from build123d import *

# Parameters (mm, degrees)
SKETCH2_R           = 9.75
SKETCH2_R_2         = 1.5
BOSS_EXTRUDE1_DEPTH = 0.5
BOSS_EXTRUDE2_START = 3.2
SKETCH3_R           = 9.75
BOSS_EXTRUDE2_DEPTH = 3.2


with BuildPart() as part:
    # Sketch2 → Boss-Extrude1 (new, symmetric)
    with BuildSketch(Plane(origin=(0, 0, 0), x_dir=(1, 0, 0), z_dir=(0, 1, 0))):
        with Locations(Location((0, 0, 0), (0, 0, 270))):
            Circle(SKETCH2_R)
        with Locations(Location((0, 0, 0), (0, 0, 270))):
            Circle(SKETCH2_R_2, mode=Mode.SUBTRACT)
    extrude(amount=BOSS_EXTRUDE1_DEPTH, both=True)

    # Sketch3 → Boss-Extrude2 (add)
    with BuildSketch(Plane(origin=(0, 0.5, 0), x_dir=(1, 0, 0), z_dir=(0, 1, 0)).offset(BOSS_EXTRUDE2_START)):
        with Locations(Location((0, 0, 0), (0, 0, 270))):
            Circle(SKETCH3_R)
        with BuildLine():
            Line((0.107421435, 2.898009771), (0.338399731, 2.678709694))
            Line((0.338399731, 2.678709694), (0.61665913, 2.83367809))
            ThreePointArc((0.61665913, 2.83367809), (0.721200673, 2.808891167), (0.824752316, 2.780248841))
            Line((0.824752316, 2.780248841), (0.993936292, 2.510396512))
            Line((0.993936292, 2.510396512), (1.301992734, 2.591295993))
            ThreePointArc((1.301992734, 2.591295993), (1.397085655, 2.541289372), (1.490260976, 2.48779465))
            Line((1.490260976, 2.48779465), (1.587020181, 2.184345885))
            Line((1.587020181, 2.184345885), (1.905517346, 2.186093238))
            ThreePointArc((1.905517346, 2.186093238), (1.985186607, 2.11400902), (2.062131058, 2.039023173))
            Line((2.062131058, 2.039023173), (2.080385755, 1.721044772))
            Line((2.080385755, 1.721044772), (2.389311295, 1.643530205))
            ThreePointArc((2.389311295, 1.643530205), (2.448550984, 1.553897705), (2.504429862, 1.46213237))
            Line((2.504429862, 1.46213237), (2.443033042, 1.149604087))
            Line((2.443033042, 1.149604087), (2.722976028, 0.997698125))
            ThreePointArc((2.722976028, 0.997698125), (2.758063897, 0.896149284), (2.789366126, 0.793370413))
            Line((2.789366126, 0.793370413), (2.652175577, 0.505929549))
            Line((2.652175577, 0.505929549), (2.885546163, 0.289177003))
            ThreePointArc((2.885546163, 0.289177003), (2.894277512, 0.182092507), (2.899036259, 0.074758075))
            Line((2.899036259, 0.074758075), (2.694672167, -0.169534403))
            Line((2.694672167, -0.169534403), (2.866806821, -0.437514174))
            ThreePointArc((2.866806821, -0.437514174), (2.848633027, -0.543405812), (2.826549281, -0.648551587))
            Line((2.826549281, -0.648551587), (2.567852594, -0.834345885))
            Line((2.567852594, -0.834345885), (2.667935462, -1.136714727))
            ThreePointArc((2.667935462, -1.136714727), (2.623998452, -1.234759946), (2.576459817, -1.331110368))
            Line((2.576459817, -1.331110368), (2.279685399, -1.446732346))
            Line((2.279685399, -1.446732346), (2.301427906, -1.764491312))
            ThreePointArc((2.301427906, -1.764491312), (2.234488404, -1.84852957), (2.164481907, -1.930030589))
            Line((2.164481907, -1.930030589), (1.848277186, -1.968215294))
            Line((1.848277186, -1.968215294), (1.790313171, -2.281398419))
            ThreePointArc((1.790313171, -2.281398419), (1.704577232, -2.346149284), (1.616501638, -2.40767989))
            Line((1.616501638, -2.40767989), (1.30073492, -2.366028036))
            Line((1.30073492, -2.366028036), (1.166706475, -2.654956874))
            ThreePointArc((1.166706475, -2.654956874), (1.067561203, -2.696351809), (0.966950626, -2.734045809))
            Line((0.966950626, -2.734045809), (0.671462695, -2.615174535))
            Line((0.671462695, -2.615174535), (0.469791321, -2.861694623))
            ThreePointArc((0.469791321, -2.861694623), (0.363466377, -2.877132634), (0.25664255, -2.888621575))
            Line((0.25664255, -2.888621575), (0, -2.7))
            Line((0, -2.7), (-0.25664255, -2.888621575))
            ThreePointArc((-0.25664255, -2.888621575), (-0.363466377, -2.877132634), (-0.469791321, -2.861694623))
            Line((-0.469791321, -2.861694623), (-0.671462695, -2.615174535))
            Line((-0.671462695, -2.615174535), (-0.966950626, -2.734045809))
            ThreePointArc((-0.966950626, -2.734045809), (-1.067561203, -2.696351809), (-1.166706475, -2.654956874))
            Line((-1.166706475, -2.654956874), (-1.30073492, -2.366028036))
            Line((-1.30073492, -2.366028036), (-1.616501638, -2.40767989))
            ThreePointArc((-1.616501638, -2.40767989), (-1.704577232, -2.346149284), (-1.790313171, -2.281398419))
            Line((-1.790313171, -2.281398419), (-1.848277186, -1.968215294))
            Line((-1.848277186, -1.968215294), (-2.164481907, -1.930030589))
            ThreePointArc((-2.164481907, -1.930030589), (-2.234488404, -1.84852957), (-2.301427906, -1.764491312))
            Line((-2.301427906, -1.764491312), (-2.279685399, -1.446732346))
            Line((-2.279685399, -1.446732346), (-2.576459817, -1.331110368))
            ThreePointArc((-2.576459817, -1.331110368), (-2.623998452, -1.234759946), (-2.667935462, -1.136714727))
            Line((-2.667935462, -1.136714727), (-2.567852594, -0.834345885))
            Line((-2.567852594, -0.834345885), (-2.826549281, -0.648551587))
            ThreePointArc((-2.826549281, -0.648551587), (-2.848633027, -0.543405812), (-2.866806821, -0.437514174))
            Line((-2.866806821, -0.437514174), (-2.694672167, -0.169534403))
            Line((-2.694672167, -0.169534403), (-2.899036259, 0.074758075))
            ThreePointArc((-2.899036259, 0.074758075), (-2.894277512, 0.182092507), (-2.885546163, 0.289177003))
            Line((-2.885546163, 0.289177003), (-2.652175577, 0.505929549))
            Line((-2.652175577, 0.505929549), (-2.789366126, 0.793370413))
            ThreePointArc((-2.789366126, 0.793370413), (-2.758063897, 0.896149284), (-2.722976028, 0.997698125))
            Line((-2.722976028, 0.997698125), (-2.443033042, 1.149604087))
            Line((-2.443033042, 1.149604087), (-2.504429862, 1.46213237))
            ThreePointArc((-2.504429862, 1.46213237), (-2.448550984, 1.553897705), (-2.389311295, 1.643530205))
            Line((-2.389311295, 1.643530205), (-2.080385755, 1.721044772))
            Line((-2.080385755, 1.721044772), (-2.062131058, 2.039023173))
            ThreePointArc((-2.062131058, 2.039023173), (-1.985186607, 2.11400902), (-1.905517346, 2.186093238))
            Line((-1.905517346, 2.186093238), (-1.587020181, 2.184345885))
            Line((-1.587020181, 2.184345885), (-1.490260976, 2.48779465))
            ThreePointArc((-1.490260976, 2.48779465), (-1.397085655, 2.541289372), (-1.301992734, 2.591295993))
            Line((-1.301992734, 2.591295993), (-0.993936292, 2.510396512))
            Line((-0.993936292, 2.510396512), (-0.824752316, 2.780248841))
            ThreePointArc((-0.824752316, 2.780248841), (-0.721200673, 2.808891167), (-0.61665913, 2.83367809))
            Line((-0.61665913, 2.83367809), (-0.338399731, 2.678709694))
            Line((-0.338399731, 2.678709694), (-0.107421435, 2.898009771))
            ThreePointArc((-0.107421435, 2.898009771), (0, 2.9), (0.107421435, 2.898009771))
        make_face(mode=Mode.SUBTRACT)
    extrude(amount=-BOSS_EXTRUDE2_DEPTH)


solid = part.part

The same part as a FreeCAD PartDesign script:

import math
import FreeCAD as App
import Part
import Sketcher

V = App.Vector

doc = App.newDocument("Part")
body = doc.addObject("PartDesign::Body", "Body")

# Sketch on XZ plane
sketch1 = doc.addObject("Sketcher::SketchObject", "Sketch")
body.addObject(sketch1)
sketch1.AttachmentSupport = (doc.XZ_Plane, [""])
sketch1.MapMode = "FlatFace"
sketch1.addGeometry([
    Part.Circle(V(0, 0, 0), V(0, 0, 1), 9.8),
    Part.Circle(V(0, 0, 0), V(0, 0, 1), 1.5),
], False)
sketch1.addConstraint([
    Sketcher.Constraint("Coincident", 0, 3, -1, 1),
    Sketcher.Constraint("Coincident", 1, 3, -1, 1),
    Sketcher.Constraint("Diameter", 1, 3.0),
    Sketcher.Constraint("Diameter", 0, 19.5),
])
pad1 = doc.addObject("PartDesign::Pad", "Pad")
body.addObject(pad1)
pad1.Profile = sketch1
pad1.Length = 1
pad1.Midplane = True

# Sketch on XZ plane
sketch2 = doc.addObject("Sketcher::SketchObject", "Sketch001")
body.addObject(sketch2)
sketch2.AttachmentSupport = (doc.XZ_Plane, [""])
sketch2.MapMode = "FlatFace"
sketch2.AttachmentOffset = App.Placement(V(0, 0, -3.7), App.Rotation())
sketch2.addGeometry([
    Part.Circle(V(0, 0, 0), V(0, 0, 1), 9.75),  # 0
    Part.ArcOfCircle(Part.Circle(V(0, 0, 0), V(0, 0, 1), 2.9), math.radians(-92.12), math.radians(-87.88)),  # 1
    Part.LineSegment(V(0.11, -2.9, 0), V(0.34, -2.68, 0)),  # 2
    Part.LineSegment(V(0.34, -2.68, 0), V(0.62, -2.83, 0)),  # 3
    Part.ArcOfCircle(Part.Circle(V(0, 0, 0), V(0, 0, 1), 2.9), math.radians(-77.72), math.radians(-73.48)),  # 4
    Part.LineSegment(V(0.82, -2.78, 0), V(0.99, -2.51, 0)),  # 5
    Part.LineSegment(V(0.99, -2.51, 0), V(1.3, -2.59, 0)),  # 6
    Part.ArcOfCircle(Part.Circle(V(0, 0, 0), V(0, 0, 1), 2.9), math.radians(-63.32), math.radians(-59.08)),  # 7
    Part.LineSegment(V(1.49, -2.49, 0), V(1.59, -2.18, 0)),  # 8
    Part.LineSegment(V(1.59, -2.18, 0), V(1.91, -2.19, 0)),  # 9
    Part.ArcOfCircle(Part.Circle(V(0, 0, 0), V(0, 0, 1), 2.9), math.radians(-48.92), math.radians(-44.68)),  # 10
    Part.LineSegment(V(2.06, -2.04, 0), V(2.08, -1.72, 0)),  # 11
    Part.LineSegment(V(2.08, -1.72, 0), V(2.39, -1.64, 0)),  # 12
    Part.ArcOfCircle(Part.Circle(V(0, 0, 0), V(0, 0, 1), 2.9), math.radians(-34.52), math.radians(-30.28)),  # 13
    Part.LineSegment(V(2.5, -1.46, 0), V(2.44, -1.15, 0)),  # 14
    Part.LineSegment(V(2.44, -1.15, 0), V(2.72, -1, 0)),  # 15
    Part.ArcOfCircle(Part.Circle(V(0, 0, 0), V(0, 0, 1), 2.9), math.radians(-20.12), math.radians(-15.88)),  # 16
    Part.LineSegment(V(2.79, -0.79, 0), V(2.65, -0.51, 0)),  # 17
    Part.LineSegment(V(2.65, -0.51, 0), V(2.89, -0.29, 0)),  # 18
    Part.ArcOfCircle(Part.Circle(V(0, 0, 0), V(0, 0, 1), 2.9), math.radians(-5.72), math.radians(-1.48)),  # 19
    Part.LineSegment(V(2.9, -0.07, 0), V(2.69, 0.17, 0)),  # 20
    Part.LineSegment(V(2.69, 0.17, 0), V(2.87, 0.44, 0)),  # 21
    Part.ArcOfCircle(Part.Circle(V(0, 0, 0), V(0, 0, 1), 2.9), math.radians(8.68), math.radians(12.92)),  # 22
    Part.LineSegment(V(2.83, 0.65, 0), V(2.57, 0.83, 0)),  # 23
    Part.LineSegment(V(2.57, 0.83, 0), V(2.67, 1.14, 0)),  # 24
    Part.ArcOfCircle(Part.Circle(V(0, 0, 0), V(0, 0, 1), 2.9), math.radians(23.08), math.radians(27.32)),  # 25
    Part.LineSegment(V(2.58, 1.33, 0), V(2.28, 1.45, 0)),  # 26
    Part.LineSegment(V(2.28, 1.45, 0), V(2.3, 1.76, 0)),  # 27
    Part.ArcOfCircle(Part.Circle(V(0, 0, 0), V(0, 0, 1), 2.9), math.radians(37.48), math.radians(41.72)),  # 28
    Part.LineSegment(V(2.16, 1.93, 0), V(1.85, 1.97, 0)),  # 29
    Part.LineSegment(V(1.85, 1.97, 0), V(1.79, 2.28, 0)),  # 30
    Part.ArcOfCircle(Part.Circle(V(0, 0, 0), V(0, 0, 1), 2.9), math.radians(51.88), math.radians(56.12)),  # 31
    Part.LineSegment(V(1.62, 2.41, 0), V(1.3, 2.37, 0)),  # 32
    Part.LineSegment(V(1.3, 2.37, 0), V(1.17, 2.65, 0)),  # 33
    Part.ArcOfCircle(Part.Circle(V(0, 0, 0), V(0, 0, 1), 2.9), math.radians(66.28), math.radians(70.52)),  # 34
    Part.LineSegment(V(0.97, 2.73, 0), V(0.67, 2.62, 0)),  # 35
    Part.LineSegment(V(0.67, 2.62, 0), V(0.47, 2.86, 0)),  # 36
    Part.ArcOfCircle(Part.Circle(V(0, 0, 0), V(0, 0, 1), 2.9), math.radians(80.68), math.radians(84.92)),  # 37
    Part.LineSegment(V(0.26, 2.89, 0), V(0, 2.7, 0)),  # 38
    Part.LineSegment(V(0, 2.7, 0), V(-0.26, 2.89, 0)),  # 39
    Part.ArcOfCircle(Part.Circle(V(0, 0, 0), V(0, 0, 1), 2.9), math.radians(95.08), math.radians(99.32)),  # 40
    Part.LineSegment(V(-0.47, 2.86, 0), V(-0.67, 2.62, 0)),  # 41
    Part.LineSegment(V(-0.67, 2.62, 0), V(-0.97, 2.73, 0)),  # 42
    Part.ArcOfCircle(Part.Circle(V(0, 0, 0), V(0, 0, 1), 2.9), math.radians(109.48), math.radians(113.72)),  # 43
    Part.LineSegment(V(-1.17, 2.65, 0), V(-1.3, 2.37, 0)),  # 44
    Part.LineSegment(V(-1.3, 2.37, 0), V(-1.62, 2.41, 0)),  # 45
    Part.ArcOfCircle(Part.Circle(V(0, 0, 0), V(0, 0, 1), 2.9), math.radians(123.88), math.radians(128.12)),  # 46
    Part.LineSegment(V(-1.79, 2.28, 0), V(-1.85, 1.97, 0)),  # 47
    Part.LineSegment(V(-1.85, 1.97, 0), V(-2.16, 1.93, 0)),  # 48
    Part.ArcOfCircle(Part.Circle(V(0, 0, 0), V(0, 0, 1), 2.9), math.radians(138.28), math.radians(142.52)),  # 49
    Part.LineSegment(V(-2.3, 1.76, 0), V(-2.28, 1.45, 0)),  # 50
    Part.LineSegment(V(-2.28, 1.45, 0), V(-2.58, 1.33, 0)),  # 51
    Part.ArcOfCircle(Part.Circle(V(0, 0, 0), V(0, 0, 1), 2.9), math.radians(152.68), math.radians(156.92)),  # 52
    Part.LineSegment(V(-2.67, 1.14, 0), V(-2.57, 0.83, 0)),  # 53
    Part.LineSegment(V(-2.57, 0.83, 0), V(-2.83, 0.65, 0)),  # 54
    Part.ArcOfCircle(Part.Circle(V(0, 0, 0), V(0, 0, 1), 2.9), math.radians(167.08), math.radians(171.32)),  # 55
    Part.LineSegment(V(-2.87, 0.44, 0), V(-2.69, 0.17, 0)),  # 56
    Part.LineSegment(V(-2.69, 0.17, 0), V(-2.9, -0.07, 0)),  # 57
    Part.ArcOfCircle(Part.Circle(V(0, 0, 0), V(0, 0, 1), 2.9), math.radians(-178.52), math.radians(-174.28)),  # 58
    Part.LineSegment(V(-2.89, -0.29, 0), V(-2.65, -0.51, 0)),  # 59
    Part.LineSegment(V(-2.65, -0.51, 0), V(-2.79, -0.79, 0)),  # 60
    Part.ArcOfCircle(Part.Circle(V(0, 0, 0), V(0, 0, 1), 2.9), math.radians(-164.12), math.radians(-159.88)),  # 61
    Part.LineSegment(V(-2.72, -1, 0), V(-2.44, -1.15, 0)),  # 62
    Part.LineSegment(V(-2.44, -1.15, 0), V(-2.5, -1.46, 0)),  # 63
    Part.ArcOfCircle(Part.Circle(V(0, 0, 0), V(0, 0, 1), 2.9), math.radians(-149.72), math.radians(-145.48)),  # 64
    Part.LineSegment(V(-2.39, -1.64, 0), V(-2.08, -1.72, 0)),  # 65
    Part.LineSegment(V(-2.08, -1.72, 0), V(-2.06, -2.04, 0)),  # 66
    Part.ArcOfCircle(Part.Circle(V(0, 0, 0), V(0, 0, 1), 2.9), math.radians(-135.32), math.radians(-131.08)),  # 67
    Part.LineSegment(V(-1.91, -2.19, 0), V(-1.59, -2.18, 0)),  # 68
    Part.LineSegment(V(-1.59, -2.18, 0), V(-1.49, -2.49, 0)),  # 69
    Part.ArcOfCircle(Part.Circle(V(0, 0, 0), V(0, 0, 1), 2.9), math.radians(-120.92), math.radians(-116.68)),  # 70
    Part.LineSegment(V(-1.3, -2.59, 0), V(-0.99, -2.51, 0)),  # 71
    Part.LineSegment(V(-0.99, -2.51, 0), V(-0.82, -2.78, 0)),  # 72
    Part.ArcOfCircle(Part.Circle(V(0, 0, 0), V(0, 0, 1), 2.9), math.radians(-106.52), math.radians(-102.28)),  # 73
    Part.LineSegment(V(-0.62, -2.83, 0), V(-0.34, -2.68, 0)),  # 74
    Part.LineSegment(V(-0.34, -2.68, 0), V(-0.11, -2.9, 0)),  # 75
], False)
sketch2.addConstraint([
    Sketcher.Constraint("Coincident", 1, 2, 2, 1),
    Sketcher.Constraint("Coincident", 2, 2, 3, 1),
    Sketcher.Constraint("Coincident", 3, 2, 4, 1),
    Sketcher.Constraint("Coincident", 4, 2, 5, 1),
    Sketcher.Constraint("Coincident", 5, 2, 6, 1),
    Sketcher.Constraint("Coincident", 6, 2, 7, 1),
    Sketcher.Constraint("Coincident", 7, 2, 8, 1),
    Sketcher.Constraint("Coincident", 8, 2, 9, 1),
    Sketcher.Constraint("Coincident", 9, 2, 10, 1),
    Sketcher.Constraint("Coincident", 10, 2, 11, 1),
    Sketcher.Constraint("Coincident", 11, 2, 12, 1),
    Sketcher.Constraint("Coincident", 12, 2, 13, 1),
    Sketcher.Constraint("Coincident", 13, 2, 14, 1),
    Sketcher.Constraint("Coincident", 14, 2, 15, 1),
    Sketcher.Constraint("Coincident", 15, 2, 16, 1),
    Sketcher.Constraint("Coincident", 16, 2, 17, 1),
    Sketcher.Constraint("Coincident", 17, 2, 18, 1),
    Sketcher.Constraint("Coincident", 18, 2, 19, 1),
    Sketcher.Constraint("Coincident", 19, 2, 20, 1),
    Sketcher.Constraint("Coincident", 20, 2, 21, 1),
    Sketcher.Constraint("Coincident", 21, 2, 22, 1),
    Sketcher.Constraint("Coincident", 22, 2, 23, 1),
    Sketcher.Constraint("Coincident", 23, 2, 24, 1),
    Sketcher.Constraint("Coincident", 24, 2, 25, 1),
    Sketcher.Constraint("Coincident", 25, 2, 26, 1),
    Sketcher.Constraint("Coincident", 26, 2, 27, 1),
    Sketcher.Constraint("Coincident", 27, 2, 28, 1),
    Sketcher.Constraint("Coincident", 28, 2, 29, 1),
    Sketcher.Constraint("Coincident", 29, 2, 30, 1),
    Sketcher.Constraint("Coincident", 30, 2, 31, 1),
    Sketcher.Constraint("Coincident", 31, 2, 32, 1),
    Sketcher.Constraint("Coincident", 32, 2, 33, 1),
    Sketcher.Constraint("Coincident", 33, 2, 34, 1),
    Sketcher.Constraint("Coincident", 34, 2, 35, 1),
    Sketcher.Constraint("Coincident", 35, 2, 36, 1),
    Sketcher.Constraint("Coincident", 36, 2, 37, 1),
    Sketcher.Constraint("Coincident", 37, 2, 38, 1),
    Sketcher.Constraint("Coincident", 38, 2, 39, 1),
    Sketcher.Constraint("Coincident", 39, 2, 40, 1),
    Sketcher.Constraint("Coincident", 40, 2, 41, 1),
    Sketcher.Constraint("Coincident", 41, 2, 42, 1),
    Sketcher.Constraint("Coincident", 42, 2, 43, 1),
    Sketcher.Constraint("Coincident", 43, 2, 44, 1),
    Sketcher.Constraint("Coincident", 44, 2, 45, 1),
    Sketcher.Constraint("Coincident", 45, 2, 46, 1),
    Sketcher.Constraint("Coincident", 46, 2, 47, 1),
    Sketcher.Constraint("Coincident", 47, 2, 48, 1),
    Sketcher.Constraint("Coincident", 48, 2, 49, 1),
    Sketcher.Constraint("Coincident", 49, 2, 50, 1),
    Sketcher.Constraint("Coincident", 50, 2, 51, 1),
    Sketcher.Constraint("Coincident", 51, 2, 52, 1),
    Sketcher.Constraint("Coincident", 52, 2, 53, 1),
    Sketcher.Constraint("Coincident", 53, 2, 54, 1),
    Sketcher.Constraint("Coincident", 54, 2, 55, 1),
    Sketcher.Constraint("Coincident", 55, 2, 56, 1),
    Sketcher.Constraint("Coincident", 56, 2, 57, 1),
    Sketcher.Constraint("Coincident", 57, 2, 58, 1),
    Sketcher.Constraint("Coincident", 58, 2, 59, 1),
    Sketcher.Constraint("Coincident", 59, 2, 60, 1),
    Sketcher.Constraint("Coincident", 60, 2, 61, 1),
    Sketcher.Constraint("Coincident", 61, 2, 62, 1),
    Sketcher.Constraint("Coincident", 62, 2, 63, 1),
    Sketcher.Constraint("Coincident", 63, 2, 64, 1),
    Sketcher.Constraint("Coincident", 64, 2, 65, 1),
    Sketcher.Constraint("Coincident", 65, 2, 66, 1),
    Sketcher.Constraint("Coincident", 66, 2, 67, 1),
    Sketcher.Constraint("Coincident", 67, 2, 68, 1),
    Sketcher.Constraint("Coincident", 68, 2, 69, 1),
    Sketcher.Constraint("Coincident", 69, 2, 70, 1),
    Sketcher.Constraint("Coincident", 70, 2, 71, 1),
    Sketcher.Constraint("Coincident", 71, 2, 72, 1),
    Sketcher.Constraint("Coincident", 72, 2, 73, 1),
    Sketcher.Constraint("Coincident", 73, 2, 74, 1),
    Sketcher.Constraint("Coincident", 74, 2, 75, 1),
    Sketcher.Constraint("Coincident", 75, 2, 1, 1),
    Sketcher.Constraint("Coincident", 0, 3, -1, 1),
    Sketcher.Constraint("Coincident", 1, 3, -1, 1),
    Sketcher.Constraint("Coincident", 4, 3, -1, 1),
    Sketcher.Constraint("Coincident", 7, 3, -1, 1),
    Sketcher.Constraint("Coincident", 10, 3, -1, 1),
    Sketcher.Constraint("Coincident", 13, 3, -1, 1),
    Sketcher.Constraint("Coincident", 16, 3, -1, 1),
    Sketcher.Constraint("Coincident", 19, 3, -1, 1),
    Sketcher.Constraint("Coincident", 22, 3, -1, 1),
    Sketcher.Constraint("Coincident", 25, 3, -1, 1),
    Sketcher.Constraint("Coincident", 28, 3, -1, 1),
    Sketcher.Constraint("Coincident", 31, 3, -1, 1),
    Sketcher.Constraint("Coincident", 34, 3, -1, 1),
    Sketcher.Constraint("Coincident", 37, 3, -1, 1),
    Sketcher.Constraint("Coincident", 40, 3, -1, 1),
    Sketcher.Constraint("Coincident", 43, 3, -1, 1),
    Sketcher.Constraint("Coincident", 46, 3, -1, 1),
    Sketcher.Constraint("Coincident", 49, 3, -1, 1),
    Sketcher.Constraint("Coincident", 52, 3, -1, 1),
    Sketcher.Constraint("Coincident", 55, 3, -1, 1),
    Sketcher.Constraint("Coincident", 58, 3, -1, 1),
    Sketcher.Constraint("Coincident", 61, 3, -1, 1),
    Sketcher.Constraint("Coincident", 64, 3, -1, 1),
    Sketcher.Constraint("Coincident", 67, 3, -1, 1),
    Sketcher.Constraint("Coincident", 70, 3, -1, 1),
    Sketcher.Constraint("Coincident", 73, 3, -1, 1),
    Sketcher.Constraint("Equal", 1, 4),
    Sketcher.Constraint("Equal", 4, 7),
    Sketcher.Constraint("Equal", 7, 10),
    Sketcher.Constraint("Equal", 10, 13),
    Sketcher.Constraint("Equal", 13, 16),
    Sketcher.Constraint("Equal", 16, 19),
    Sketcher.Constraint("Equal", 19, 22),
    Sketcher.Constraint("Equal", 22, 25),
    Sketcher.Constraint("Equal", 25, 28),
    Sketcher.Constraint("Equal", 28, 31),
    Sketcher.Constraint("Equal", 31, 34),
    Sketcher.Constraint("Equal", 34, 37),
    Sketcher.Constraint("Equal", 37, 40),
    Sketcher.Constraint("Equal", 40, 43),
    Sketcher.Constraint("Equal", 43, 46),
    Sketcher.Constraint("Equal", 46, 49),
    Sketcher.Constraint("Equal", 49, 52),
    Sketcher.Constraint("Equal", 52, 55),
    Sketcher.Constraint("Equal", 55, 58),
    Sketcher.Constraint("Equal", 58, 61),
    Sketcher.Constraint("Equal", 61, 64),
    Sketcher.Constraint("Equal", 64, 67),
    Sketcher.Constraint("Equal", 67, 70),
    Sketcher.Constraint("Equal", 70, 73),
    Sketcher.Constraint("Symmetric", 35, 2, 41, 2, -2),
    Sketcher.Constraint("Symmetric", 32, 2, 44, 2, -2),
    Sketcher.Constraint("Symmetric", 29, 2, 47, 2, -2),
    Sketcher.Constraint("Symmetric", 26, 2, 50, 2, -2),
    Sketcher.Constraint("Symmetric", 23, 2, 53, 2, -2),
    Sketcher.Constraint("Symmetric", 20, 2, 56, 2, -2),
    Sketcher.Constraint("Symmetric", 17, 2, 59, 2, -2),
    Sketcher.Constraint("Symmetric", 14, 2, 62, 2, -2),
    Sketcher.Constraint("Symmetric", 11, 2, 65, 2, -2),
    Sketcher.Constraint("Symmetric", 8, 2, 68, 2, -2),
    Sketcher.Constraint("Symmetric", 5, 2, 71, 2, -2),
    Sketcher.Constraint("Symmetric", 2, 2, 74, 2, -2),
    Sketcher.Constraint("PointOnObject", 38, 2, -2),
    Sketcher.Constraint("Horizontal", 37, 2, 39, 2),
    Sketcher.Constraint("Horizontal", 36, 2, 40, 2),
    Sketcher.Constraint("Horizontal", 34, 2, 42, 2),
    Sketcher.Constraint("Horizontal", 33, 2, 43, 2),
    Sketcher.Constraint("Horizontal", 31, 2, 45, 2),
    Sketcher.Constraint("Horizontal", 30, 2, 46, 2),
    Sketcher.Constraint("Horizontal", 28, 2, 48, 2),
    Sketcher.Constraint("Horizontal", 27, 2, 49, 2),
    Sketcher.Constraint("Horizontal", 25, 2, 51, 2),
    Sketcher.Constraint("Horizontal", 24, 2, 52, 2),
    Sketcher.Constraint("Horizontal", 22, 2, 54, 2),
    Sketcher.Constraint("Horizontal", 21, 2, 55, 2),
    Sketcher.Constraint("Horizontal", 19, 2, 57, 2),
    Sketcher.Constraint("Horizontal", 18, 2, 58, 2),
    Sketcher.Constraint("Horizontal", 16, 2, 60, 2),
    Sketcher.Constraint("Horizontal", 15, 2, 61, 2),
    Sketcher.Constraint("Horizontal", 13, 2, 63, 2),
    Sketcher.Constraint("Horizontal", 12, 2, 64, 2),
    Sketcher.Constraint("Horizontal", 10, 2, 66, 2),
    Sketcher.Constraint("Horizontal", 9, 2, 67, 2),
    Sketcher.Constraint("Horizontal", 7, 2, 69, 2),
    Sketcher.Constraint("Horizontal", 6, 2, 70, 2),
    Sketcher.Constraint("Horizontal", 4, 2, 72, 2),
    Sketcher.Constraint("Horizontal", 3, 2, 73, 2),
    Sketcher.Constraint("Horizontal", 1, 2, 75, 2),
    Sketcher.Constraint("Equal", 2, 3),
    Sketcher.Constraint("Equal", 3, 5),
    Sketcher.Constraint("Equal", 5, 6),
    Sketcher.Constraint("Equal", 6, 8),
    Sketcher.Constraint("Equal", 8, 9),
    Sketcher.Constraint("Equal", 9, 11),
    Sketcher.Constraint("Equal", 11, 12),
    Sketcher.Constraint("Equal", 12, 14),
    Sketcher.Constraint("Equal", 14, 15),
    Sketcher.Constraint("Equal", 15, 17),
    Sketcher.Constraint("Equal", 17, 18),
    Sketcher.Constraint("Equal", 18, 20),
    Sketcher.Constraint("Equal", 20, 21),
    Sketcher.Constraint("Equal", 21, 23),
    Sketcher.Constraint("Equal", 23, 24),
    Sketcher.Constraint("Equal", 24, 26),
    Sketcher.Constraint("Equal", 26, 27),
    Sketcher.Constraint("Equal", 27, 29),
    Sketcher.Constraint("Equal", 29, 30),
    Sketcher.Constraint("Equal", 30, 32),
    Sketcher.Constraint("Equal", 32, 33),
    Sketcher.Constraint("Equal", 33, 35),
    Sketcher.Constraint("Equal", 35, 36),
    Sketcher.Constraint("Equal", 36, 38),
    Sketcher.Constraint("Diameter", 0, 19.5),
    Sketcher.Constraint("Radius", 1, 2.899999),
    Sketcher.Constraint("DistanceY", -1, 1, 38, 2, 2.7),
    Sketcher.Constraint("Distance", 2, 0.318502),
    Sketcher.Constraint("DistanceX", -1, 1, 2, 2, 0.3384),
    Sketcher.Constraint("DistanceY", 15, 2, -1, 1, 0.997698),
    Sketcher.Constraint("DistanceY", -1, 1, 30, 2, 2.281398),
    Sketcher.Constraint("DistanceX", -1, 1, 31, 2, 1.616502),
    Sketcher.Constraint("DistanceX", -1, 1, 1, 2, 0.107421),
    Sketcher.Constraint("DistanceY", 4, 2, -1, 1, 2.780249),
    Sketcher.Constraint("DistanceX", -1, 1, 7, 2, 1.490261),
    Sketcher.Constraint("DistanceX", -1, 1, 8, 2, 1.58702),
    Sketcher.Constraint("DistanceX", -1, 1, 10, 2, 2.062131),
    Sketcher.Constraint("DistanceX", -1, 1, 12, 2, 2.389311),
    Sketcher.Constraint("DistanceX", -1, 1, 13, 2, 2.50443),
    Sketcher.Constraint("DistanceY", 16, 2, -1, 1, 0.79337),
    Sketcher.Constraint("DistanceY", 17, 2, -1, 1, 0.50593),
    Sketcher.Constraint("DistanceY", 19, 2, -1, 1, 0.074758),
    Sketcher.Constraint("DistanceX", -1, 1, 22, 2, 2.826549),
    Sketcher.Constraint("DistanceX", -1, 1, 25, 2, 2.57646),
    Sketcher.Constraint("DistanceY", -1, 1, 27, 2, 1.764491),
    Sketcher.Constraint("DistanceX", -1, 1, 28, 2, 2.164482),
    Sketcher.Constraint("DistanceY", -1, 1, 32, 2, 2.366028),
    Sketcher.Constraint("DistanceX", -1, 1, 34, 2, 0.966951),
    Sketcher.Constraint("DistanceX", -1, 1, 36, 2, 0.469791),
    Sketcher.Constraint("DistanceX", -1, 1, 5, 2, 0.993936),
    Sketcher.Constraint("DistanceX", -1, 1, 20, 2, 2.694672),
    Sketcher.Constraint("DistanceX", -1, 1, 23, 2, 2.567853),
])
pad2 = doc.addObject("PartDesign::Pad", "Pad001")
body.addObject(pad2)
pad2.Profile = sketch2
pad2.Length = 3.2

doc.recompute()
